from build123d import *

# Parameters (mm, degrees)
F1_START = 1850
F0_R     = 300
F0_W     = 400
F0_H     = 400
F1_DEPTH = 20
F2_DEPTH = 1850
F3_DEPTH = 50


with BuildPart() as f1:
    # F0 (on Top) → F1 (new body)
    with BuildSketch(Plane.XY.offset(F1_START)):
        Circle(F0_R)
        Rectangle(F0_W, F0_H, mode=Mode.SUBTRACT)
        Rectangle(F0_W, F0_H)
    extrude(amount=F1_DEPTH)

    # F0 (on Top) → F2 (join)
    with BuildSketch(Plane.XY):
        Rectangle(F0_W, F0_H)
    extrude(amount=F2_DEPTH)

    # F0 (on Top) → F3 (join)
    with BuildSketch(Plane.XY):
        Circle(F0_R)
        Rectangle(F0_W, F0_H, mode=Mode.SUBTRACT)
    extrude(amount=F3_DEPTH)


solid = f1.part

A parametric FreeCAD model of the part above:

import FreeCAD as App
import Part
import Sketcher

V = App.Vector

doc = App.newDocument("Part")
body = doc.addObject("PartDesign::Body", "Body")

sketch1 = doc.addObject("Sketcher::SketchObject", "Sketch")
body.addObject(sketch1)
sketch1.AttachmentSupport = (doc.XY_Plane, [""])
sketch1.MapMode = "FlatFace"
sketch1.AttachmentOffset = App.Placement(V(0, 0, 1850), App.Rotation())
sketch1.addGeometry(Part.Circle(V(0, 0, 0), V(0, 0, 1), 300), False)
sketch1.addConstraint(Sketcher.Constraint("Coincident", 0, 3, -1, 1))
sketch1.addConstraint(Sketcher.Constraint("Diameter", 0, 600.0))
pad1 = doc.addObject("PartDesign::Pad", "Pad")
body.addObject(pad1)
pad1.Profile = sketch1
pad1.Length = 20

sketch2 = doc.addObject("Sketcher::SketchObject", "Sketch001")
body.addObject(sketch2)
sketch2.AttachmentSupport = (doc.XY_Plane, [""])
sketch2.MapMode = "FlatFace"
sketch2.addGeometry(Part.LineSegment(V(-200, 200, 0), V(-200, -200, 0)), False)
sketch2.addGeometry(Part.LineSegment(V(-200, -200, 0), V(200, -200, 0)), False)
sketch2.addGeometry(Part.LineSegment(V(200, -200, 0), V(200, 200, 0)), False)
sketch2.addGeometry(Part.LineSegment(V(200, 200, 0), V(-200, 200, 0)), False)
sketch2.addConstraint(Sketcher.Constraint("Coincident", 0, 2, 1, 1))
sketch2.addConstraint(Sketcher.Constraint("Coincident", 1, 2, 2, 1))
sketch2.addConstraint(Sketcher.Constraint("Coincident", 2, 2, 3, 1))
sketch2.addConstraint(Sketcher.Constraint("Coincident", 3, 2, 0, 1))
sketch2.addConstraint(Sketcher.Constraint("Vertical", 0))
sketch2.addConstraint(Sketcher.Constraint("Horizontal", 1))
sketch2.addConstraint(Sketcher.Constraint("Vertical", 2))
sketch2.addConstraint(Sketcher.Constraint("Horizontal", 3))
sketch2.addConstraint(Sketcher.Constraint("Symmetric", 0, 2, 2, 2, -1, 1))
sketch2.addConstraint(Sketcher.Constraint("Equal", 3, 0))
sketch2.addConstraint(Sketcher.Constraint("DistanceX", 1, 1, 1, 2, 400.0))
pad2 = doc.addObject("PartDesign::Pad", "Pad001")
body.addObject(pad2)
pad2.Profile = sketch2
pad2.Length = 1850

sketch3 = doc.addObject("Sketcher::SketchObject", "Sketch002")
body.addObject(sketch3)
sketch3.AttachmentSupport = (doc.XY_Plane, [""])
sketch3.MapMode = "FlatFace"
sketch3.addGeometry(Part.Circle(V(0, 0, 0), V(0, 0, 1), 300), False)
sketch3.addGeometry(Part.LineSegment(V(200, -200, 0), V(-200, -200, 0)), False)
sketch3.addGeometry(Part.LineSegment(V(-200, -200, 0), V(-200, 200, 0)), False)
sketch3.addGeometry(Part.LineSegment(V(-200, 200, 0), V(200, 200, 0)), False)
sketch3.addGeometry(Part.LineSegment(V(200, 200, 0), V(200, -200, 0)), False)
sketch3.addConstraint(Sketcher.Constraint("Coincident", 1, 2, 2, 1))
sketch3.addConstraint(Sketcher.Constraint("Coincident", 2, 2, 3, 1))
sketch3.addConstraint(Sketcher.Constraint("Coincident", 3, 2, 4, 1))
sketch3.addConstraint(Sketcher.Constraint("Coincident", 4, 2, 1, 1))
sketch3.addConstraint(Sketcher.Constraint("Horizontal", 1))
sketch3.addConstraint(Sketcher.Constraint("Vertical", 2))
sketch3.addConstraint(Sketcher.Constraint("Horizontal", 3))
sketch3.addConstraint(Sketcher.Constraint("Vertical", 4))
sketch3.addConstraint(Sketcher.Constraint("Coincident", 0, 3, -1, 1))
sketch3.addConstraint(Sketcher.Constraint("Symmetric", 1, 2, 3, 2, -1, 1))
sketch3.addConstraint(Sketcher.Constraint("Equal", 3, 2))
sketch3.addConstraint(Sketcher.Constraint("Diameter", 0, 600.0))
sketch3.addConstraint(Sketcher.Constraint("DistanceX", 1, 2, 1, 1, 400.0))
pad3 = doc.addObject("PartDesign::Pad", "Pad002")
body.addObject(pad3)
pad3.Profile = sketch3
pad3.Length = 50

doc.recompute()
